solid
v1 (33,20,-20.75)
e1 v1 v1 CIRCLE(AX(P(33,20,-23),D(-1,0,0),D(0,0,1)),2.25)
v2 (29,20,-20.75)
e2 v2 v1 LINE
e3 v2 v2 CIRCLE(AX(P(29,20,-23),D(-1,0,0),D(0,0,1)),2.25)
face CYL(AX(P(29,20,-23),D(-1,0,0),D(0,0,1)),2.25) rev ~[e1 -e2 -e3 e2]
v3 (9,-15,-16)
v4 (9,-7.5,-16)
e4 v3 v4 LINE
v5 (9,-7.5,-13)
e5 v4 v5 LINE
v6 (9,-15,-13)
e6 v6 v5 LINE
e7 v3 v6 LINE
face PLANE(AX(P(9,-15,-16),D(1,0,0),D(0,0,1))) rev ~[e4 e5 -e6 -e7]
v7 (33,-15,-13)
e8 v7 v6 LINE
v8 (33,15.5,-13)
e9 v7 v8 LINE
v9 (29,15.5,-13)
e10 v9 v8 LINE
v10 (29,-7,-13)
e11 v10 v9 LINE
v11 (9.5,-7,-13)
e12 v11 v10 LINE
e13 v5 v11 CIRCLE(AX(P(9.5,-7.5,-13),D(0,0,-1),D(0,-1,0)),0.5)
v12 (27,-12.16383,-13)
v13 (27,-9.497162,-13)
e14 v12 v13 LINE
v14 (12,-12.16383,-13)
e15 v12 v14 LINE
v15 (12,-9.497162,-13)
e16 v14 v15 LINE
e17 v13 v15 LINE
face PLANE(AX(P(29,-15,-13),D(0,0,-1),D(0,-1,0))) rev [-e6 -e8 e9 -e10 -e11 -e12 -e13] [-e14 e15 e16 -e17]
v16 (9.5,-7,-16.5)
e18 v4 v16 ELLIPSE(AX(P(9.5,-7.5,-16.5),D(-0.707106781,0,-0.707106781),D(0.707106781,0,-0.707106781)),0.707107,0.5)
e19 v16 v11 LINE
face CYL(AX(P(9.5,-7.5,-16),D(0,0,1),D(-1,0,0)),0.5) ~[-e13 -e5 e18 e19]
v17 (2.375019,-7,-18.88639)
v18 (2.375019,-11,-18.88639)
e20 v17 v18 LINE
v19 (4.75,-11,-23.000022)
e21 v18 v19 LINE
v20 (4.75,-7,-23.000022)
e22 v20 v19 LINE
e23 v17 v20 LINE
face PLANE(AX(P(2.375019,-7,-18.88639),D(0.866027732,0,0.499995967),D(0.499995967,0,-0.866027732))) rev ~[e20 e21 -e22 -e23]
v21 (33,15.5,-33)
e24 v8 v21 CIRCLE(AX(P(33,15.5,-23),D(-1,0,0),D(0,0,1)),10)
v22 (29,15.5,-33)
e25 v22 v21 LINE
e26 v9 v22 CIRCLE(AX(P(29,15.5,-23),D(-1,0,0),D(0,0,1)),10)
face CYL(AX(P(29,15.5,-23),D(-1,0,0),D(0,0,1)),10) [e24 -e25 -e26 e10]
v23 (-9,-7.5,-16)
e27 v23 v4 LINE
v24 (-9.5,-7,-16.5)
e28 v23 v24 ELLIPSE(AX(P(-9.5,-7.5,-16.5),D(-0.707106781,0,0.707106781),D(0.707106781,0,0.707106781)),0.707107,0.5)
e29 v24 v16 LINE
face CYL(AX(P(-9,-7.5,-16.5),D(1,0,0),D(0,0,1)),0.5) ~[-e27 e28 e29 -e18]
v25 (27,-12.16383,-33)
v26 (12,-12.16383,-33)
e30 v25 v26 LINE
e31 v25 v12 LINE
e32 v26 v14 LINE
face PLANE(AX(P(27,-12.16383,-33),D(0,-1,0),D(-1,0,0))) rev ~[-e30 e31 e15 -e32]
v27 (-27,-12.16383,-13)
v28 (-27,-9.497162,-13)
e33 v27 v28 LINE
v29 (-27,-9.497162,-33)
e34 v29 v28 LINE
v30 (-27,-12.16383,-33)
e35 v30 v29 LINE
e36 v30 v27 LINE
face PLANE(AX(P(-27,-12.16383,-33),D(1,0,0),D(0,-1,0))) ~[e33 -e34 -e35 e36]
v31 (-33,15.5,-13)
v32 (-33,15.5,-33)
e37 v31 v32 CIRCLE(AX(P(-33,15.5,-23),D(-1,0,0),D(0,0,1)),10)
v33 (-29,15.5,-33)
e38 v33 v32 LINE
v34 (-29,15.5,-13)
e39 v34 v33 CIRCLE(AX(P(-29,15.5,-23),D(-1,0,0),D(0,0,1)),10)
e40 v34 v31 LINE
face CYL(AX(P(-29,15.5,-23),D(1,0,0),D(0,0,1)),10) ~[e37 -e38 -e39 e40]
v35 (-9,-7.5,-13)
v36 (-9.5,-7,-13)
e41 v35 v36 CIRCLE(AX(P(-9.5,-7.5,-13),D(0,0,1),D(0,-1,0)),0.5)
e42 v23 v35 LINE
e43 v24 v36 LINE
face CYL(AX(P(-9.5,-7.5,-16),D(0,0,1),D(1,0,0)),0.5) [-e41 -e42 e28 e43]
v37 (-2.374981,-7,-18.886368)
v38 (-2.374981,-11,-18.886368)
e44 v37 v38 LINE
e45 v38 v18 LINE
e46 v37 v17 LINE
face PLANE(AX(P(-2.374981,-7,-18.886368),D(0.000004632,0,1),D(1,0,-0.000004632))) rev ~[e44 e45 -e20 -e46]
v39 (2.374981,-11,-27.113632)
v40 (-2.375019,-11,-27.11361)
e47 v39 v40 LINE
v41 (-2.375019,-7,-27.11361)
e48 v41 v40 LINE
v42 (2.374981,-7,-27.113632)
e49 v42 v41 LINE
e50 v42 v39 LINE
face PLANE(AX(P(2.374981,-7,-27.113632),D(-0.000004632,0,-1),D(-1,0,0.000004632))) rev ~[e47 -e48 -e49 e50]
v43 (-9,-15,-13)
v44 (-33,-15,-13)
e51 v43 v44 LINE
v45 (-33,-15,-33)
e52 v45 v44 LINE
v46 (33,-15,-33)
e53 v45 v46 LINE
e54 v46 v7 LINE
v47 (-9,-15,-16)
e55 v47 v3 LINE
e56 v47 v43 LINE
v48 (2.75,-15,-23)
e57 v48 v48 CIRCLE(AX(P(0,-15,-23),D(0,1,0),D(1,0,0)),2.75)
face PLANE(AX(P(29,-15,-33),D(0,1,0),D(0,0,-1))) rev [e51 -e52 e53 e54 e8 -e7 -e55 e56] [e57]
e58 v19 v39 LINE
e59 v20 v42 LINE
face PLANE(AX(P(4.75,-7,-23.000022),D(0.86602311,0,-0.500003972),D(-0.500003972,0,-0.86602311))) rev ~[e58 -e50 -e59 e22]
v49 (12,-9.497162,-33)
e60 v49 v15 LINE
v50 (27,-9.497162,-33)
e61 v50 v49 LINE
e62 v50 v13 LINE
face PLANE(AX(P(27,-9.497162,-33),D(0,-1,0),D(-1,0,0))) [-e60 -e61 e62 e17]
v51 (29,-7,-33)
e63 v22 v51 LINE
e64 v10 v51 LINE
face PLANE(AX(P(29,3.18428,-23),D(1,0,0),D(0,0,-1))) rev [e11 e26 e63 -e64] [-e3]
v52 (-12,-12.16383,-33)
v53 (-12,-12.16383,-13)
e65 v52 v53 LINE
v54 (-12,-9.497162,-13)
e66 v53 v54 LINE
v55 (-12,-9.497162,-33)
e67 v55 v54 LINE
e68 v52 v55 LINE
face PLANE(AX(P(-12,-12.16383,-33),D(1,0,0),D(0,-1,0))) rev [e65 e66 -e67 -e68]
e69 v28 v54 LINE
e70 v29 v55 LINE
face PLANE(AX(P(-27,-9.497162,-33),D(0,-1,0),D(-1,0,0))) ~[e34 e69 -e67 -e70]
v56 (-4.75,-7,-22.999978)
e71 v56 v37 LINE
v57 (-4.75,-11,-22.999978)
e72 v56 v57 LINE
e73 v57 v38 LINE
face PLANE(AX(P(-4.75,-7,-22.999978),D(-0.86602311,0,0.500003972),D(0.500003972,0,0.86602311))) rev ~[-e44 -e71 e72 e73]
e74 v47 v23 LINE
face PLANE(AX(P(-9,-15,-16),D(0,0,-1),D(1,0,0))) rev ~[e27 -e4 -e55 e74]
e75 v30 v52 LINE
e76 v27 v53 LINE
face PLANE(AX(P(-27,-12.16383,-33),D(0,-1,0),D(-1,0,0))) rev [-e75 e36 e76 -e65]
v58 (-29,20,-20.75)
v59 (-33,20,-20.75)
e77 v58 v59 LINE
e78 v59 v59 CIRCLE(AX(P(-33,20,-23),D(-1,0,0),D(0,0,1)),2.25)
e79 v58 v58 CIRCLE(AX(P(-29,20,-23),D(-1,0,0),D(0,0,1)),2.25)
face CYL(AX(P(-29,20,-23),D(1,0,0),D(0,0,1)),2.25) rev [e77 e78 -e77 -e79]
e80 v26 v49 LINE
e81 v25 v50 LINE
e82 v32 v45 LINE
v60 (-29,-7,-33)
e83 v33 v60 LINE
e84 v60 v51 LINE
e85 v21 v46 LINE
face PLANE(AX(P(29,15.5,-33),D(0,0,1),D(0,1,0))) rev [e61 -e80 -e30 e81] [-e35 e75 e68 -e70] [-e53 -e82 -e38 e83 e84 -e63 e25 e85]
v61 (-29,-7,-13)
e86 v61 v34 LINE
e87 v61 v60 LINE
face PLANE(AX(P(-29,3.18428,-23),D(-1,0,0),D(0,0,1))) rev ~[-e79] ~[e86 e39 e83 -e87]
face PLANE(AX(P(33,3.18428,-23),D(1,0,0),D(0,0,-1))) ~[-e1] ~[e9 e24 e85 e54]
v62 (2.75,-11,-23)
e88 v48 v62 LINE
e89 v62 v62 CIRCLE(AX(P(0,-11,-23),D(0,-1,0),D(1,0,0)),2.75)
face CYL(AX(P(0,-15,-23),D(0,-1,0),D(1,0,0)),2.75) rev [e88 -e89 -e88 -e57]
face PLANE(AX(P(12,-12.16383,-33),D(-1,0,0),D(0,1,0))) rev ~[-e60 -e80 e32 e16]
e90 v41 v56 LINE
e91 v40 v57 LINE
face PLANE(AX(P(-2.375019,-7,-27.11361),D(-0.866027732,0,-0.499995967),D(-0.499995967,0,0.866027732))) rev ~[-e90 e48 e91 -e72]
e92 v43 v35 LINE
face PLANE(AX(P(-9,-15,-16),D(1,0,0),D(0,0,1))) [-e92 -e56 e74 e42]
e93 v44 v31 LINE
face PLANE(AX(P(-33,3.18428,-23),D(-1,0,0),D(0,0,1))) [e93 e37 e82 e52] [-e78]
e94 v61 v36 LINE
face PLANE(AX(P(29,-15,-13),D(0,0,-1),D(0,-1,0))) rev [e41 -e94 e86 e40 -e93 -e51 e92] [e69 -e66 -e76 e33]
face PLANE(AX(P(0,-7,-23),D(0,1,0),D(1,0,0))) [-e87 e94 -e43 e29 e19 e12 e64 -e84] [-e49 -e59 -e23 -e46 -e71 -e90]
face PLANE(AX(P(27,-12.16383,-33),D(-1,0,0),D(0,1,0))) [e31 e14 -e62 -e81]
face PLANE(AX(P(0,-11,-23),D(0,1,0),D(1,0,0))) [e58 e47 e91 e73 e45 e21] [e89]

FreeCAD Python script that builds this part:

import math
import FreeCAD as App
import Part
import Sketcher

V = App.Vector
Q = App.Units.Quantity


def edges_at(feature, points):
    """Names of the edges that pass closest to the given points."""
    edges = feature.Shape.Edges
    near = lambda p: min(range(len(edges)), key=lambda i: edges[i].distToShape(Part.Vertex(*p))[0])
    return sorted({f"Edge{near(p) + 1}" for p in points})

doc = App.newDocument("Part")
params = doc.addObject("Spreadsheet::Sheet", "Params")
for row, (alias, value) in enumerate([
    ("sketch1_diameter", "5.5 mm"),
    ("sketch1_width", "58 mm"),
    ("sketch1_height", "20 mm"),
    ("pad1_length", "8 mm"),
    ("sketch2_radius", "10 mm"),
    ("sketch2_diameter", "4.5 mm"),
    ("sketch2_width", "30.5 mm"),
    ("pad2_length", "4 mm"),
    ("sketch3_length", "4.75 mm"),
    ("pocket1_length", "4 mm"),
    ("sketch4_width", "15 mm"),
    ("pocket2_length", "20 mm"),
    ("sketch5_width", "18 mm"),
    ("sketch5_height", "3 mm"),
    ("pocket3_length", "8 mm"),
    ("fillet_radius", "0.5 mm"),
], start=1):
    params.set(f"A{row}", alias)
    params.set(f"B{row}", "=" + value)
    params.setAlias(f"B{row}", alias)

body = doc.addObject("PartDesign::Body", "Body")

# Sketch on XZ plane
sketch1 = body.newObject("Sketcher::SketchObject", "Sketch")
sketch1.AttachmentSupport = (doc.getObject("XZ_Plane"), [""])
sketch1.MapMode = "FlatFace"
sketch1.addGeometry([
    Part.LineSegment(V(-29, 10, 0), V(-29, -10, 0)),  # 0
    Part.LineSegment(V(-29, -10, 0), V(29, -10, 0)),  # 1
    Part.LineSegment(V(29, -10, 0), V(29, 10, 0)),  # 2
    Part.LineSegment(V(29, 10, 0), V(-29, 10, 0)),  # 3
    Part.Circle(V(0, 0, 0), V(0, 0, 1), 2.8),  # 4
], False)
sketch1.addConstraint([
    Sketcher.Constraint("Coincident", 0, 2, 1, 1),
    Sketcher.Constraint("Coincident", 1, 2, 2, 1),
    Sketcher.Constraint("Coincident", 2, 2, 3, 1),
    Sketcher.Constraint("Coincident", 3, 2, 0, 1),
    Sketcher.Constraint("Vertical", 0),
    Sketcher.Constraint("Horizontal", 1),
    Sketcher.Constraint("Vertical", 2),
    Sketcher.Constraint("Horizontal", 3),
    Sketcher.Constraint("Coincident", 4, 3, -1, 1),
    Sketcher.Constraint("Symmetric", 0, 2, 2, 2, -1, 1),
    Sketcher.Constraint("Diameter", 4, Q("5.5 mm")),
    Sketcher.Constraint("DistanceX", 1, 1, 1, 2, Q("58 mm")),
    Sketcher.Constraint("DistanceY", 0, 2, 0, 1, Q("20 mm")),
])
sketch1.setExpression("Constraints[10]", "Params.sketch1_diameter")
sketch1.setExpression("Constraints[11]", "Params.sketch1_width")
sketch1.setExpression("Constraints[12]", "Params.sketch1_height")
pad1 = body.newObject("PartDesign::Pad", "Pad")
pad1.Profile = sketch1
pad1.setExpression("Length", "Params.pad1_length")

# Sketch on YZ plane
sketch2 = body.newObject("Sketcher::SketchObject", "Sketch001")
sketch2.AttachmentSupport = (doc.getObject("YZ_Plane"), [""])
sketch2.MapMode = "FlatFace"
sketch2.AttachmentOffset = App.Placement(V(0, 0, -29), App.Rotation())
sketch2.addGeometry([
    Part.LineSegment(V(0, 10, 0), V(0, -10, 0)),  # 0
    Part.LineSegment(V(0, -10, 0), V(-30.5, -10, 0)),  # 1
    Part.ArcOfCircle(Part.Circle(V(-30.5, 0, 0), V(0, 0, 1), 10), math.radians(90), math.radians(270)),  # 2
    Part.LineSegment(V(-30.5, 10, 0), V(0, 10, 0)),  # 3
    Part.Circle(V(-35, 0, 0), V(0, 0, 1), 2.2),  # 4
], False)
sketch2.addConstraint([
    Sketcher.Constraint("Coincident", 0, 2, 1, 1),
    Sketcher.Constraint("Tangent", 1, 2, 2, 2),
    Sketcher.Constraint("Tangent", 2, 1, 3, 1),
    Sketcher.Constraint("Coincident", 3, 2, 0, 1),
    Sketcher.Constraint("Vertical", 0),
    Sketcher.Constraint("Horizontal", 1),
    Sketcher.Constraint("Horizontal", 3),
    Sketcher.Constraint("Symmetric", 0, 2, 3, 2, -1, 1),
    Sketcher.Constraint("PointOnObject", 4, 3, -1),
    Sketcher.Constraint("Radius", 2, Q("10 mm")),
    Sketcher.Constraint("Diameter", 4, Q("4.5 mm")),
    Sketcher.Constraint("DistanceX", 1, 2, 1, 1, Q("30.5 mm")),
    Sketcher.Constraint("DistanceX", 4, 3, -1, 1, Q("35 mm")),
])
sketch2.setExpression("Constraints[9]", "Params.sketch2_radius")
sketch2.setExpression("Constraints[10]", "Params.sketch2_diameter")
sketch2.setExpression("Constraints[11]", "Params.sketch2_width")
pad2 = body.newObject("PartDesign::Pad", "Pad001")
pad2.Profile = sketch2
pad2.setExpression("Length", "Params.pad2_length")
pad2.Reversed = True
doc.recompute()

mirrored = body.newObject("PartDesign::Mirrored", "Mirrored")
mirrored.Originals = [pad2]
mirrored.MirrorPlane = (doc.getObject("YZ_Plane"), [""])
body.Tip = mirrored

# Sketch on XZ plane
sketch3 = body.newObject("Sketcher::SketchObject", "Sketch002")
sketch3.AttachmentSupport = (doc.getObject("XZ_Plane"), [""])
sketch3.MapMode = "FlatFace"
sketch3.AttachmentOffset = App.Placement(V(0, 0, 8), App.Rotation())
sketch3.addGeometry([
    Part.LineSegment(V(2.4, 4.1, 0), V(-2.4, 4.1, 0)),  # 0
    Part.LineSegment(V(-2.4, 4.1, 0), V(-4.8, 0, 0)),  # 1
    Part.LineSegment(V(-4.8, 0, 0), V(-2.4, -4.1, 0)),  # 2
    Part.LineSegment(V(-2.4, -4.1, 0), V(2.4, -4.1, 0)),  # 3
    Part.LineSegment(V(2.4, -4.1, 0), V(4.8, 0, 0)),  # 4
    Part.LineSegment(V(4.8, 0, 0), V(2.4, 4.1, 0)),  # 5
], False)
sketch3.addConstraint([
    Sketcher.Constraint("Coincident", 0, 2, 1, 1),
    Sketcher.Constraint("Coincident", 1, 2, 2, 1),
    Sketcher.Constraint("Coincident", 2, 2, 3, 1),
    Sketcher.Constraint("Coincident", 3, 2, 4, 1),
    Sketcher.Constraint("Coincident", 4, 2, 5, 1),
    Sketcher.Constraint("Coincident", 5, 2, 0, 1),
    Sketcher.Constraint("Symmetric", 0, 2, 3, 2, -1, 1),
    Sketcher.Constraint("Symmetric", 1, 2, 4, 2, -1, 1),
    Sketcher.Constraint("Symmetric", 2, 2, 5, 2, -1, 1),
    Sketcher.Constraint("Equal", 0, 1),
    Sketcher.Constraint("Equal", 1, 2),
    Sketcher.Constraint("DistanceX", 1, 2, 4, 2, Q("9.5 mm")),
    Sketcher.Constraint("Distance", 0, Q("4.75 mm")),
    Sketcher.Constraint("DistanceX", 0, 2, -1, 1, Q("2.375019 mm")),
    Sketcher.Constraint("DistanceY", -1, 1, 0, 2, Q("4.11361 mm")),
])
sketch3.setExpression("Constraints[12]", "Params.sketch3_length")
pocket1 = body.newObject("PartDesign::Pocket", "Pocket")
pocket1.Profile = sketch3
pocket1.setExpression("Length", "Params.pocket1_length")

# Sketch on XY plane
sketch4 = body.newObject("Sketcher::SketchObject", "Sketch003")
sketch4.AttachmentSupport = (doc.getObject("XY_Plane"), [""])
sketch4.MapMode = "FlatFace"
sketch4.AttachmentOffset = App.Placement(V(0, 0, 10), App.Rotation())
sketch4.addGeometry([
    Part.LineSegment(V(27, -5.5, 0), V(27, -2.8, 0)),
    Part.LineSegment(V(27, -2.8, 0), V(12, -2.8, 0)),
    Part.LineSegment(V(12, -2.8, 0), V(12, -5.5, 0)),
    Part.LineSegment(V(12, -5.5, 0), V(27, -5.5, 0)),
], False)
sketch4.addConstraint([
    Sketcher.Constraint("Coincident", 0, 2, 1, 1),
    Sketcher.Constraint("Coincident", 1, 2, 2, 1),
    Sketcher.Constraint("Coincident", 2, 2, 3, 1),
    Sketcher.Constraint("Coincident", 3, 2, 0, 1),
    Sketcher.Constraint("Vertical", 0),
    Sketcher.Constraint("Horizontal", 1),
    Sketcher.Constraint("Vertical", 2),
    Sketcher.Constraint("Horizontal", 3),
    Sketcher.Constraint("DistanceX", 1, 2, 1, 1, Q("15 mm")),
    Sketcher.Constraint("DistanceX", -1, 1, 0, 2, Q("27 mm")),
    Sketcher.Constraint("DistanceY", 0, 1, 0, 2, Q("2.666667 mm")),
    Sketcher.Constraint("DistanceY", 0, 2, -1, 1, Q("2.836171 mm")),
])
sketch4.setExpression("Constraints[8]", "Params.sketch4_width")
pocket2 = body.newObject("PartDesign::Pocket", "Pocket001")
pocket2.Profile = sketch4
pocket2.setExpression("Length", "Params.pocket2_length")
doc.recompute()

mirrored2 = body.newObject("PartDesign::Mirrored", "Mirrored001")
mirrored2.Originals = [pocket2]
mirrored2.MirrorPlane = (doc.getObject("YZ_Plane"), [""])
body.Tip = mirrored2

# Sketch on XZ plane
sketch5 = body.newObject("Sketcher::SketchObject", "Sketch004")
sketch5.AttachmentSupport = (doc.getObject("XZ_Plane"), [""])
sketch5.MapMode = "FlatFace"
sketch5.addGeometry([
    Part.LineSegment(V(-9, -10, 0), V(-9, -7, 0)),
    Part.LineSegment(V(-9, -7, 0), V(9, -7, 0)),
    Part.LineSegment(V(9, -7, 0), V(9, -10, 0)),
    Part.LineSegment(V(9, -10, 0), V(-9, -10, 0)),
], False)
sketch5.addConstraint([
    Sketcher.Constraint("Coincident", 0, 2, 1, 1),
    Sketcher.Constraint("Coincident", 1, 2, 2, 1),
    Sketcher.Constraint("Coincident", 2, 2, 3, 1),
    Sketcher.Constraint("Coincident", 3, 2, 0, 1),
    Sketcher.Constraint("Vertical", 0),
    Sketcher.Constraint("Horizontal", 1),
    Sketcher.Constraint("Vertical", 2),
    Sketcher.Constraint("Horizontal", 3),
    Sketcher.Constraint("DistanceX", 1, 1, 1, 2, Q("18 mm")),
    Sketcher.Constraint("DistanceY", 0, 1, 0, 2, Q("3 mm")),
    Sketcher.Constraint("DistanceX", 0, 2, -1, 1, Q("9 mm")),
    Sketcher.Constraint("DistanceY", 0, 2, -1, 1, Q("7 mm")),
])
sketch5.setExpression("Constraints[8]", "Params.sketch5_width")
sketch5.setExpression("Constraints[9]", "Params.sketch5_height")
pocket3 = body.newObject("PartDesign::Pocket", "Pocket002")
pocket3.Profile = sketch5
pocket3.setExpression("Length", "Params.pocket3_length")
pocket3.Reversed = True
doc.recompute()

fillet = body.newObject("PartDesign::Fillet", "Fillet")
fillet.Base = (pocket3, edges_at(pocket3, [(0, -8, -7), (9, -8, -8.5), (-9, -8, -8.5)]))
fillet.setExpression("Radius", "Params.fillet_radius")
body2 = doc.addObject("PartDesign::Body", "Body001")
doc.recompute()

body.Placement = App.Placement(V(0, -15, -23), App.Rotation(V(1, 0, 0), 180))
boolean = body2.newObject("PartDesign::Boolean", "Boolean")
boolean.Type = "Fuse"
boolean.addObjects([body])

doc.recompute()
